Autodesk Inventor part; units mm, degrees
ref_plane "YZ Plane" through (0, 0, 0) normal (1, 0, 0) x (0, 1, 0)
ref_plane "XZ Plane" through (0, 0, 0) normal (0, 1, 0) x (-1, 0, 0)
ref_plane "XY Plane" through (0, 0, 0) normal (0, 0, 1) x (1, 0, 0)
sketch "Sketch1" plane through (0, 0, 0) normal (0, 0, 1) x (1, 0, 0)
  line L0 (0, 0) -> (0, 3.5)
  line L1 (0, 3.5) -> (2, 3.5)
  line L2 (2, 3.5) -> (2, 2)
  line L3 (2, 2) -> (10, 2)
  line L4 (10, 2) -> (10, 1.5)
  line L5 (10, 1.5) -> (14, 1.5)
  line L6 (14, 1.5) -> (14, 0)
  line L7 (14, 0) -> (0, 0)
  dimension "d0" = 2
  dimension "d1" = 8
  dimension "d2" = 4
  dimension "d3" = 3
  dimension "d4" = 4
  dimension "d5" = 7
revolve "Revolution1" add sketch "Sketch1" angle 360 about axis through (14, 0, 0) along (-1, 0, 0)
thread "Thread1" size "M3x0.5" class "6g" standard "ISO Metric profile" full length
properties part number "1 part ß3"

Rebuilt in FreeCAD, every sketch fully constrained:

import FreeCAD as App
import Part
import Sketcher
from FreeCAD import Vector
Q = App.Units.Quantity

doc = App.newDocument("Part")
body = doc.addObject("PartDesign::Body", "Body")

# Sketch on XY plane
sketch1 = body.newObject("Sketcher::SketchObject", "Sketch")
sketch1.AttachmentSupport = (doc.getObject("XY_Plane"), [""])
sketch1.MapMode = "FlatFace"
sketch1.addGeometry([
    Part.LineSegment(Vector(0, 3.5, 0), Vector(0, 0, 0)),  # 0
    Part.LineSegment(Vector(0, 0, 0), Vector(14, 0, 0)),  # 1
    Part.LineSegment(Vector(14, 0, 0), Vector(14, 1.5, 0)),  # 2
    Part.LineSegment(Vector(14, 1.5, 0), Vector(10, 1.5, 0)),  # 3
    Part.LineSegment(Vector(10, 1.5, 0), Vector(10, 2, 0)),  # 4
    Part.LineSegment(Vector(10, 2, 0), Vector(2, 2, 0)),  # 5
    Part.LineSegment(Vector(2, 2, 0), Vector(2, 3.5, 0)),  # 6
    Part.LineSegment(Vector(2, 3.5, 0), Vector(0, 3.5, 0)),  # 7
], False)
sketch1.addConstraint([
    Sketcher.Constraint("Coincident", 0, 2, 1, 1),
    Sketcher.Constraint("Coincident", 1, 2, 2, 1),
    Sketcher.Constraint("Coincident", 2, 2, 3, 1),
    Sketcher.Constraint("Coincident", 3, 2, 4, 1),
    Sketcher.Constraint("Coincident", 4, 2, 5, 1),
    Sketcher.Constraint("Coincident", 5, 2, 6, 1),
    Sketcher.Constraint("Coincident", 6, 2, 7, 1),
    Sketcher.Constraint("Coincident", 7, 2, 0, 1),
    Sketcher.Constraint("Vertical", 0),
    Sketcher.Constraint("Horizontal", 1),
    Sketcher.Constraint("Vertical", 2),
    Sketcher.Constraint("Horizontal", 3),
    Sketcher.Constraint("Vertical", 4),
    Sketcher.Constraint("Horizontal", 5),
    Sketcher.Constraint("Vertical", 6),
    Sketcher.Constraint("Horizontal", 7),
    Sketcher.Constraint("Coincident", 0, 2, -1, 1),
    Sketcher.Constraint("Equal", 2, 6),
    Sketcher.Constraint("DistanceX", 3, 2, 3, 1, Q("4 mm")),
    Sketcher.Constraint("DistanceX", 5, 2, 5, 1, Q("8 mm")),
    Sketcher.Constraint("DistanceX", 7, 2, 7, 1, Q("2 mm")),
    Sketcher.Constraint("DistanceY", -1, 1, 4, 2, Q("2 mm")),
    Sketcher.Constraint("DistanceY", 0, 2, 0, 1, Q("3.5 mm")),
])
revolution = body.newObject("PartDesign::Revolution", "Revolution")
revolution.Profile = sketch1
revolution.ReferenceAxis = (sketch1, ["H_Axis"])
revolution.Angle = 360

doc.recompute()
